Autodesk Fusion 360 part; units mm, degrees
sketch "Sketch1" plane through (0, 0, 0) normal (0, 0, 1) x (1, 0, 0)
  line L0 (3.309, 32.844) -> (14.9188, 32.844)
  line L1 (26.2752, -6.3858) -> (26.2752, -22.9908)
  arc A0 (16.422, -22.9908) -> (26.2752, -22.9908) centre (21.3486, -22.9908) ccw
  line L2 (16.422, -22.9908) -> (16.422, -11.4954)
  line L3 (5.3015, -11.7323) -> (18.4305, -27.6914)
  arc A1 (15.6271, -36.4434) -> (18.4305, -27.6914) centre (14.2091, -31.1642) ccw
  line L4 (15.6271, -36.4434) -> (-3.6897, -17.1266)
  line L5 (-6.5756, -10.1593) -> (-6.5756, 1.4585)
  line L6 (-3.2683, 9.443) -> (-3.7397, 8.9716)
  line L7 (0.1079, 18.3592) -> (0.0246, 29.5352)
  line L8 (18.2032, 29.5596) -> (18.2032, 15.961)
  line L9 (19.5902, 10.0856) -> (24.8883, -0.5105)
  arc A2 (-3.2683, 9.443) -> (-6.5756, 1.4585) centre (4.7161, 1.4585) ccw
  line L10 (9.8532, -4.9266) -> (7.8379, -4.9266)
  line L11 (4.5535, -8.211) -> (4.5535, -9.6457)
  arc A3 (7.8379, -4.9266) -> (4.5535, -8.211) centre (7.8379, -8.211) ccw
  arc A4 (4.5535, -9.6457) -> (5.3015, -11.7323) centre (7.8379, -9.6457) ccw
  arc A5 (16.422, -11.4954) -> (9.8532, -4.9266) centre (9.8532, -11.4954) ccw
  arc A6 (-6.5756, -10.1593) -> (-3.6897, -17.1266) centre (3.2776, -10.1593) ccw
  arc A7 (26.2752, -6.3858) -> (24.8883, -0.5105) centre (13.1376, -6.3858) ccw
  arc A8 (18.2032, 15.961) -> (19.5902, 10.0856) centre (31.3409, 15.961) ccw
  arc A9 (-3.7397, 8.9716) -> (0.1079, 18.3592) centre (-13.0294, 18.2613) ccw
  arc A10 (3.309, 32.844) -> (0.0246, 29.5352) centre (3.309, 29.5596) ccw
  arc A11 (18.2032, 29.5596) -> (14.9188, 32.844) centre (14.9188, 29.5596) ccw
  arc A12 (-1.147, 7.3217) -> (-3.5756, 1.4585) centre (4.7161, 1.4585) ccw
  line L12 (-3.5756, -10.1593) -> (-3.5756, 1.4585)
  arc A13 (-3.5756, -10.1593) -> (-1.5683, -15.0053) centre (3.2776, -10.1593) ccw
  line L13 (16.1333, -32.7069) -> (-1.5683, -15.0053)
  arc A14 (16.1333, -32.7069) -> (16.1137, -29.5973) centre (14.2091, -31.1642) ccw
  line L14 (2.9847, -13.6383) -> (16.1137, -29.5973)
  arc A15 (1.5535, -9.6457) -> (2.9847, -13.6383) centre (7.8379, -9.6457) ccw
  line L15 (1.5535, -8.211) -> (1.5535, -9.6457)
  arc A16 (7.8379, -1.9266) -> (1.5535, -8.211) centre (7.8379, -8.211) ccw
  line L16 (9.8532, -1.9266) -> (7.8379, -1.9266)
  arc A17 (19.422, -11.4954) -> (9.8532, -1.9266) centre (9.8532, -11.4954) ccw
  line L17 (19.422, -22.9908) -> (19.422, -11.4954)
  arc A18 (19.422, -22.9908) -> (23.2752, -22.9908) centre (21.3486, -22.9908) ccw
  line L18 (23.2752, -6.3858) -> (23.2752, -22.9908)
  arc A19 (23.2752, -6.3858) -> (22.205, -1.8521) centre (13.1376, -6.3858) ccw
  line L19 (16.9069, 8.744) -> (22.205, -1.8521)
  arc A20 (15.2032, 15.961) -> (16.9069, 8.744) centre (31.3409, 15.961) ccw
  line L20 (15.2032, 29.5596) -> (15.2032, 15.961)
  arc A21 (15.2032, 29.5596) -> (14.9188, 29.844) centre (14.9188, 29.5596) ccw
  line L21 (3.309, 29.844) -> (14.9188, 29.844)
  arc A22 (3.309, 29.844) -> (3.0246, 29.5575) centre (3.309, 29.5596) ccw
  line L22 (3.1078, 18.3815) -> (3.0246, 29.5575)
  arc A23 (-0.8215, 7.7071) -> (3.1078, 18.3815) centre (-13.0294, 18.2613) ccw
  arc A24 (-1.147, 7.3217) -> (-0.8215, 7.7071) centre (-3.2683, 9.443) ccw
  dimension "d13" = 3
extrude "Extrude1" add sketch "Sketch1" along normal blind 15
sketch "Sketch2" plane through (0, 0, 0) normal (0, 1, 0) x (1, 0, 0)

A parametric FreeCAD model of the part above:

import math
import FreeCAD as App
import Part
import Sketcher
from FreeCAD import Vector
Q = App.Units.Quantity

doc = App.newDocument("Part")
body = doc.addObject("PartDesign::Body", "Body")

# Sketch on XY plane
sketch1 = body.newObject("Sketcher::SketchObject", "Sketch")
sketch1.AttachmentSupport = (doc.getObject("XY_Plane"), [""])
sketch1.MapMode = "FlatFace"
sketch1.addGeometry(Part.LineSegment(Vector(14.9188, 32.844, 0), Vector(3.309, 32.844, 0)), False)
sketch1.addGeometry(Part.ArcOfCircle(Part.Circle(Vector(3.309, 29.5596, 0), Vector(0, 0, 1), 3.2844), math.radians(90), math.radians(180.425646)), False)
sketch1.addGeometry(Part.LineSegment(Vector(0.0246, 29.5352, 0), Vector(0.1079, 18.3592, 0)), False)
sketch1.addGeometry(Part.ArcOfCircle(Part.Circle(Vector(-13.0294, 18.2613, 0), Vector(0, 0, 1), 13.13762), math.radians(-45), math.radians(0.426964)), False)
sketch1.addGeometry(Part.LineSegment(Vector(-3.7397, 8.9716, 0), Vector(-3.2683, 9.443, 0)), False)
sketch1.addGeometry(Part.ArcOfCircle(Part.Circle(Vector(4.7161, 1.4585, 0), Vector(0, 0, 1), 11.291717), math.radians(134.999641), math.radians(180)), False)
sketch1.addGeometry(Part.LineSegment(Vector(-6.5756, 1.4585, 0), Vector(-6.5756, -10.1593, 0)), False)
sketch1.addGeometry(Part.ArcOfCircle(Part.Circle(Vector(3.2776, -10.1593, 0), Vector(0, 0, 1), 9.8532), math.radians(180), math.radians(225)), False)
sketch1.addGeometry(Part.LineSegment(Vector(-3.6897, -17.1266, 0), Vector(15.6271, -36.4434, 0)), False)
sketch1.addGeometry(Part.ArcOfCircle(Part.Circle(Vector(14.2091, -31.1642, 0), Vector(0, 0, 1), 5.466322), math.radians(-74.965145), math.radians(39.442951)), False)
sketch1.addGeometry(Part.LineSegment(Vector(18.4305, -27.6914, 0), Vector(5.3015, -11.7323, 0)), False)
sketch1.addGeometry(Part.ArcOfCircle(Part.Circle(Vector(7.8379, -9.6457, 0), Vector(0, 0, 1), 3.2844), math.radians(180), math.radians(219.442834)), False)
sketch1.addGeometry(Part.LineSegment(Vector(4.5535, -9.6457, 0), Vector(4.5535, -8.211, 0)), False)
sketch1.addGeometry(Part.ArcOfCircle(Part.Circle(Vector(7.8379, -8.211, 0), Vector(0, 0, 1), 3.2844), math.radians(90), math.radians(180)), False)
sketch1.addGeometry(Part.LineSegment(Vector(7.8379, -4.9266, 0), Vector(9.8532, -4.9266, 0)), False)
sketch1.addGeometry(Part.ArcOfCircle(Part.Circle(Vector(9.8532, -11.4954, 0), Vector(0, 0, 1), 6.5688), math.radians(0), math.radians(90)), False)
sketch1.addGeometry(Part.LineSegment(Vector(16.422, -11.4954, 0), Vector(16.422, -22.9908, 0)), False)
sketch1.addGeometry(Part.ArcOfCircle(Part.Circle(Vector(21.3486, -22.9908, 0), Vector(0, 0, 1), 4.9266), math.radians(180), math.radians(360)), False)
sketch1.addGeometry(Part.LineSegment(Vector(26.2752, -22.9908, 0), Vector(26.2752, -6.3858, 0)), False)
sketch1.addGeometry(Part.ArcOfCircle(Part.Circle(Vector(13.136485, -6.38593, 0), Vector(0, 0, 1), 13.138715), math.radians(0.000566), math.radians(26.563189)), False)
sketch1.addGeometry(Part.LineSegment(Vector(24.8883, -0.5105, 0), Vector(19.5902, 10.0856, 0)), False)
sketch1.addGeometry(Part.ArcOfCircle(Part.Circle(Vector(31.3409, 15.961, 0), Vector(0, 0, 1), 13.1377), math.radians(180), math.radians(206.565246)), False)
sketch1.addGeometry(Part.LineSegment(Vector(18.2032, 15.961, 0), Vector(18.2032, 29.5596, 0)), False)
sketch1.addGeometry(Part.ArcOfCircle(Part.Circle(Vector(14.9188, 29.5596, 0), Vector(0, 0, 1), 3.2844), math.radians(0), math.radians(90)), False)
sketch1.addGeometry(Part.ArcOfCircle(Part.Circle(Vector(4.7161, 1.4585, 0), Vector(0, 0, 1), 8.291746), math.radians(134.999511), math.radians(180)), False)
sketch1.addGeometry(Part.ArcOfCircle(Part.Circle(Vector(-3.274416, 9.448622, 0), Vector(0, 0, 1), 3.008271), math.radians(-44.993343), math.radians(-35.373995)), False)
sketch1.addGeometry(Part.ArcOfCircle(Part.Circle(Vector(-13.0294, 18.2613, 0), Vector(0, 0, 1), 16.137657), math.radians(-40.844678), math.radians(0.426767)), False)
sketch1.addGeometry(Part.LineSegment(Vector(3.1078, 18.3815, 0), Vector(3.0246, 29.5575, 0)), False)
sketch1.addGeometry(Part.ArcOfCircle(Part.Circle(Vector(3.309, 29.5596, 0), Vector(0, 0, 1), 0.2844), math.radians(90), math.radians(180.423062)), False)
sketch1.addGeometry(Part.LineSegment(Vector(3.309, 29.844, 0), Vector(14.9188, 29.844, 0)), False)
sketch1.addGeometry(Part.ArcOfCircle(Part.Circle(Vector(14.9188, 29.5596, 0), Vector(0, 0, 1), 0.2844), math.radians(0), math.radians(90)), False)
sketch1.addGeometry(Part.LineSegment(Vector(15.2032, 29.5596, 0), Vector(15.2032, 15.961, 0)), False)
sketch1.addGeometry(Part.ArcOfCircle(Part.Circle(Vector(31.3409, 15.961, 0), Vector(0, 0, 1), 16.1377), math.radians(180), math.radians(206.565051)), False)
sketch1.addGeometry(Part.LineSegment(Vector(16.9069, 8.744, 0), Vector(22.205, -1.8521, 0)), False)
sketch1.addGeometry(Part.ArcOfCircle(Part.Circle(Vector(13.136452, -6.385934, 0), Vector(0, 0, 1), 10.138748), math.radians(0.000755), math.radians(26.562826)), False)
sketch1.addGeometry(Part.LineSegment(Vector(23.2752, -6.3858, 0), Vector(23.2752, -22.9908, 0)), False)
sketch1.addGeometry(Part.ArcOfCircle(Part.Circle(Vector(21.3486, -22.9908, 0), Vector(0, 0, 1), 1.9266), math.radians(180), math.radians(360)), False)
sketch1.addGeometry(Part.LineSegment(Vector(19.422, -22.9908, 0), Vector(19.422, -11.4954, 0)), False)
sketch1.addGeometry(Part.ArcOfCircle(Part.Circle(Vector(9.8532, -11.4954, 0), Vector(0, 0, 1), 9.5688), math.radians(0), math.radians(90)), False)
sketch1.addGeometry(Part.LineSegment(Vector(9.8532, -1.9266, 0), Vector(7.8379, -1.9266, 0)), False)
sketch1.addGeometry(Part.ArcOfCircle(Part.Circle(Vector(7.8379, -8.211, 0), Vector(0, 0, 1), 6.2844), math.radians(90), math.radians(180)), False)
sketch1.addGeometry(Part.LineSegment(Vector(1.5535, -8.211, 0), Vector(1.5535, -9.6457, 0)), False)
sketch1.addGeometry(Part.ArcOfCircle(Part.Circle(Vector(7.8379, -9.6457, 0), Vector(0, 0, 1), 6.2844), math.radians(180), math.radians(219.443233)), False)
sketch1.addGeometry(Part.LineSegment(Vector(2.9847, -13.6383, 0), Vector(16.1137, -29.5973, 0)), False)
sketch1.addGeometry(Part.ArcOfCircle(Part.Circle(Vector(14.2091, -31.1642, 0), Vector(0, 0, 1), 2.466266), math.radians(-38.720399), math.radians(39.443873)), False)
sketch1.addGeometry(Part.LineSegment(Vector(16.1333, -32.7069, 0), Vector(-1.5683, -15.0053, 0)), False)
sketch1.addGeometry(Part.ArcOfCircle(Part.Circle(Vector(3.2776, -10.1593, 0), Vector(0, 0, 1), 6.8532), math.radians(180), math.radians(225.000591)), False)
sketch1.addGeometry(Part.LineSegment(Vector(-3.5756, -10.1593, 0), Vector(-3.5756, 1.4585, 0)), False)
sketch1.addConstraint(Sketcher.Constraint("Tangent", 0, 2, 1, 1))
sketch1.addConstraint(Sketcher.Constraint("Tangent", 1, 2, 2, 1))
sketch1.addConstraint(Sketcher.Constraint("Tangent", 2, 2, 3, 2))
sketch1.addConstraint(Sketcher.Constraint("Tangent", 3, 1, 4, 1))
sketch1.addConstraint(Sketcher.Constraint("Tangent", 4, 2, 5, 1))
sketch1.addConstraint(Sketcher.Constraint("Tangent", 5, 2, 6, 1))
sketch1.addConstraint(Sketcher.Constraint("Tangent", 6, 2, 7, 1))
sketch1.addConstraint(Sketcher.Constraint("Tangent", 7, 2, 8, 1))
sketch1.addConstraint(Sketcher.Constraint("Coincident", 8, 2, 9, 1))
sketch1.addConstraint(Sketcher.Constraint("Tangent", 9, 2, 10, 1))
sketch1.addConstraint(Sketcher.Constraint("Tangent", 10, 2, 11, 2))
sketch1.addConstraint(Sketcher.Constraint("Tangent", 11, 1, 12, 1))
sketch1.addConstraint(Sketcher.Constraint("Tangent", 12, 2, 13, 2))
sketch1.addConstraint(Sketcher.Constraint("Tangent", 13, 1, 14, 1))
sketch1.addConstraint(Sketcher.Constraint("Tangent", 14, 2, 15, 2))
sketch1.addConstraint(Sketcher.Constraint("Tangent", 15, 1, 16, 1))
sketch1.addConstraint(Sketcher.Constraint("Tangent", 16, 2, 17, 1))
sketch1.addConstraint(Sketcher.Constraint("Tangent", 17, 2, 18, 1))
sketch1.addConstraint(Sketcher.Constraint("Tangent", 18, 2, 19, 1))
sketch1.addConstraint(Sketcher.Constraint("Tangent", 19, 2, 20, 1))
sketch1.addConstraint(Sketcher.Constraint("Tangent", 20, 2, 21, 2))
sketch1.addConstraint(Sketcher.Constraint("Tangent", 21, 1, 22, 1))
sketch1.addConstraint(Sketcher.Constraint("Tangent", 22, 2, 23, 1))
sketch1.addConstraint(Sketcher.Constraint("Tangent", 23, 2, 0, 1))
sketch1.addConstraint(Sketcher.Constraint("Tangent", 24, 1, 25, 1))
sketch1.addConstraint(Sketcher.Constraint("Coincident", 25, 2, 26, 1))
sketch1.addConstraint(Sketcher.Constraint("Tangent", 26, 2, 27, 1))
sketch1.addConstraint(Sketcher.Constraint("Tangent", 27, 2, 28, 2))
sketch1.addConstraint(Sketcher.Constraint("Tangent", 28, 1, 29, 1))
sketch1.addConstraint(Sketcher.Constraint("Tangent", 29, 2, 30, 2))
sketch1.addConstraint(Sketcher.Constraint("Tangent", 30, 1, 31, 1))
sketch1.addConstraint(Sketcher.Constraint("Tangent", 31, 2, 32, 1))
sketch1.addConstraint(Sketcher.Constraint("Tangent", 32, 2, 33, 1))
sketch1.addConstraint(Sketcher.Constraint("Tangent", 33, 2, 34, 2))
sketch1.addConstraint(Sketcher.Constraint("Tangent", 34, 1, 35, 1))
sketch1.addConstraint(Sketcher.Constraint("Tangent", 35, 2, 36, 2))
sketch1.addConstraint(Sketcher.Constraint("Tangent", 36, 1, 37, 1))
sketch1.addConstraint(Sketcher.Constraint("Tangent", 37, 2, 38, 1))
sketch1.addConstraint(Sketcher.Constraint("Tangent", 38, 2, 39, 1))
sketch1.addConstraint(Sketcher.Constraint("Tangent", 39, 2, 40, 1))
sketch1.addConstraint(Sketcher.Constraint("Tangent", 40, 2, 41, 1))
sketch1.addConstraint(Sketcher.Constraint("Tangent", 41, 2, 42, 1))
sketch1.addConstraint(Sketcher.Constraint("Tangent", 42, 2, 43, 1))
sketch1.addConstraint(Sketcher.Constraint("Tangent", 43, 2, 44, 2))
sketch1.addConstraint(Sketcher.Constraint("Coincident", 44, 1, 45, 1))
sketch1.addConstraint(Sketcher.Constraint("Tangent", 45, 2, 46, 2))
sketch1.addConstraint(Sketcher.Constraint("Tangent", 46, 1, 47, 1))
sketch1.addConstraint(Sketcher.Constraint("Tangent", 47, 2, 24, 2))
sketch1.addConstraint(Sketcher.Constraint("Horizontal", 0))
sketch1.addConstraint(Sketcher.Constraint("Vertical", 6))
sketch1.addConstraint(Sketcher.Constraint("Vertical", 12))
sketch1.addConstraint(Sketcher.Constraint("Horizontal", 14))
sketch1.addConstraint(Sketcher.Constraint("Vertical", 16))
sketch1.addConstraint(Sketcher.Constraint("Vertical", 18))
sketch1.addConstraint(Sketcher.Constraint("Vertical", 22))
sketch1.addConstraint(Sketcher.Constraint("Horizontal", 29))
sketch1.addConstraint(Sketcher.Constraint("Vertical", 31))
sketch1.addConstraint(Sketcher.Constraint("Vertical", 35))
sketch1.addConstraint(Sketcher.Constraint("Vertical", 37))
sketch1.addConstraint(Sketcher.Constraint("Horizontal", 39))
sketch1.addConstraint(Sketcher.Constraint("Vertical", 41))
sketch1.addConstraint(Sketcher.Constraint("Vertical", 47))
sketch1.addConstraint(Sketcher.Constraint("Coincident", 24, 3, 5, 3))
sketch1.addConstraint(Sketcher.Constraint("Coincident", 26, 3, 3, 3))
sketch1.addConstraint(Sketcher.Constraint("Coincident", 28, 3, 1, 3))
sketch1.addConstraint(Sketcher.Constraint("Coincident", 30, 3, 23, 3))
sketch1.addConstraint(Sketcher.Constraint("Coincident", 32, 3, 21, 3))
sketch1.addConstraint(Sketcher.Constraint("Coincident", 34, 3, 19, 3))
sketch1.addConstraint(Sketcher.Constraint("Coincident", 36, 3, 17, 3))
sketch1.addConstraint(Sketcher.Constraint("Coincident", 38, 3, 15, 3))
sketch1.addConstraint(Sketcher.Constraint("Coincident", 40, 3, 13, 3))
sketch1.addConstraint(Sketcher.Constraint("Coincident", 42, 3, 11, 3))
sketch1.addConstraint(Sketcher.Constraint("Coincident", 44, 3, 9, 3))
sketch1.addConstraint(Sketcher.Constraint("Coincident", 46, 3, 7, 3))
sketch1.addConstraint(Sketcher.Constraint("Equal", 1, 11))
sketch1.addConstraint(Sketcher.Constraint("Equal", 11, 13))
sketch1.addConstraint(Sketcher.Constraint("Equal", 3, 21))
sketch1.addConstraint(Sketcher.Constraint("Equal", 13, 23))
sketch1.addConstraint(Sketcher.Constraint("Equal", 26, 32))
sketch1.addConstraint(Sketcher.Constraint("Perpendicular", 4, 8))
sketch1.addConstraint(Sketcher.Constraint("Parallel", 20, 33))
sketch1.addConstraint(Sketcher.Constraint("Parallel", 10, 43))
sketch1.addConstraint(Sketcher.Constraint("Parallel", 8, 45))
sketch1.addConstraint(Sketcher.Constraint("Angle", 4, Q("45 deg")))
sketch1.addConstraint(Sketcher.Constraint("Radius", 1, Q("3.2844 mm")))
sketch1.addConstraint(Sketcher.Constraint("Radius", 3, Q("13.1376 mm")))
sketch1.addConstraint(Sketcher.Constraint("Radius", 5, Q("11.2917 mm")))
sketch1.addConstraint(Sketcher.Constraint("Radius", 7, Q("9.8532 mm")))
sketch1.addConstraint(Sketcher.Constraint("Radius", 9, Q("5.4663 mm")))
sketch1.addConstraint(Sketcher.Constraint("Radius", 15, Q("6.5688 mm")))
sketch1.addConstraint(Sketcher.Constraint("Radius", 17, Q("4.9266 mm")))
sketch1.addConstraint(Sketcher.Constraint("Radius", 19, Q("13.1387 mm")))
sketch1.addConstraint(Sketcher.Constraint("Radius", 24, Q("8.2917 mm")))
sketch1.addConstraint(Sketcher.Constraint("Radius", 25, Q("3.0083 mm")))
sketch1.addConstraint(Sketcher.Constraint("Radius", 26, Q("16.1377 mm")))
sketch1.addConstraint(Sketcher.Constraint("DistanceY", 18, 1, 18, 2, Q("16.605 mm")))
sketch1.addConstraint(Sketcher.Constraint("Distance", 8, Q("27.318 mm")))
sketch1.addConstraint(Sketcher.Constraint("DistanceX", 0, 2, 0, 1, Q("11.6098 mm")))
sketch1.addConstraint(Sketcher.Constraint("DistanceX", 14, 1, 14, 2, Q("2.0153 mm")))
sketch1.addConstraint(Sketcher.Constraint("DistanceY", 6, 2, 6, 1, Q("11.6178 mm")))
sketch1.addConstraint(Sketcher.Constraint("DistanceY", 12, 1, 12, 2, Q("1.4347 mm")))
sketch1.addConstraint(Sketcher.Constraint("DistanceY", 16, 2, 16, 1, Q("11.4954 mm")))
sketch1.addConstraint(Sketcher.Constraint("DistanceY", 22, 1, 22, 2, Q("13.5986 mm")))
sketch1.addConstraint(Sketcher.Constraint("DistanceX", -1, 1, 1, 3, Q("3.309 mm")))
sketch1.addConstraint(Sketcher.Constraint("DistanceX", -1, 1, 5, 3, Q("4.716 mm")))
sketch1.addConstraint(Sketcher.Constraint("DistanceX", -1, 1, 9, 3, Q("14.209 mm")))
sketch1.addConstraint(Sketcher.Constraint("DistanceX", -1, 1, 11, 3, Q("7.838 mm")))
sketch1.addConstraint(Sketcher.Constraint("DistanceY", 13, 3, -1, 1, Q("8.211 mm")))
sketch1.addConstraint(Sketcher.Constraint("DistanceY", -1, 1, 21, 3, Q("15.961 mm")))
sketch1.addConstraint(Sketcher.Constraint("DistanceX", -1, 1, 2, 2, Q("0.108 mm")))
sketch1.addConstraint(Sketcher.Constraint("DistanceY", -1, 1, 4, 2, Q("9.443 mm")))
sketch1.addConstraint(Sketcher.Constraint("DistanceX", 24, 1, -1, 1, Q("1.147 mm")))
pad1 = body.newObject("PartDesign::Pad", "Pad")
pad1.Profile = sketch1
pad1.Length = 15

doc.recompute()
